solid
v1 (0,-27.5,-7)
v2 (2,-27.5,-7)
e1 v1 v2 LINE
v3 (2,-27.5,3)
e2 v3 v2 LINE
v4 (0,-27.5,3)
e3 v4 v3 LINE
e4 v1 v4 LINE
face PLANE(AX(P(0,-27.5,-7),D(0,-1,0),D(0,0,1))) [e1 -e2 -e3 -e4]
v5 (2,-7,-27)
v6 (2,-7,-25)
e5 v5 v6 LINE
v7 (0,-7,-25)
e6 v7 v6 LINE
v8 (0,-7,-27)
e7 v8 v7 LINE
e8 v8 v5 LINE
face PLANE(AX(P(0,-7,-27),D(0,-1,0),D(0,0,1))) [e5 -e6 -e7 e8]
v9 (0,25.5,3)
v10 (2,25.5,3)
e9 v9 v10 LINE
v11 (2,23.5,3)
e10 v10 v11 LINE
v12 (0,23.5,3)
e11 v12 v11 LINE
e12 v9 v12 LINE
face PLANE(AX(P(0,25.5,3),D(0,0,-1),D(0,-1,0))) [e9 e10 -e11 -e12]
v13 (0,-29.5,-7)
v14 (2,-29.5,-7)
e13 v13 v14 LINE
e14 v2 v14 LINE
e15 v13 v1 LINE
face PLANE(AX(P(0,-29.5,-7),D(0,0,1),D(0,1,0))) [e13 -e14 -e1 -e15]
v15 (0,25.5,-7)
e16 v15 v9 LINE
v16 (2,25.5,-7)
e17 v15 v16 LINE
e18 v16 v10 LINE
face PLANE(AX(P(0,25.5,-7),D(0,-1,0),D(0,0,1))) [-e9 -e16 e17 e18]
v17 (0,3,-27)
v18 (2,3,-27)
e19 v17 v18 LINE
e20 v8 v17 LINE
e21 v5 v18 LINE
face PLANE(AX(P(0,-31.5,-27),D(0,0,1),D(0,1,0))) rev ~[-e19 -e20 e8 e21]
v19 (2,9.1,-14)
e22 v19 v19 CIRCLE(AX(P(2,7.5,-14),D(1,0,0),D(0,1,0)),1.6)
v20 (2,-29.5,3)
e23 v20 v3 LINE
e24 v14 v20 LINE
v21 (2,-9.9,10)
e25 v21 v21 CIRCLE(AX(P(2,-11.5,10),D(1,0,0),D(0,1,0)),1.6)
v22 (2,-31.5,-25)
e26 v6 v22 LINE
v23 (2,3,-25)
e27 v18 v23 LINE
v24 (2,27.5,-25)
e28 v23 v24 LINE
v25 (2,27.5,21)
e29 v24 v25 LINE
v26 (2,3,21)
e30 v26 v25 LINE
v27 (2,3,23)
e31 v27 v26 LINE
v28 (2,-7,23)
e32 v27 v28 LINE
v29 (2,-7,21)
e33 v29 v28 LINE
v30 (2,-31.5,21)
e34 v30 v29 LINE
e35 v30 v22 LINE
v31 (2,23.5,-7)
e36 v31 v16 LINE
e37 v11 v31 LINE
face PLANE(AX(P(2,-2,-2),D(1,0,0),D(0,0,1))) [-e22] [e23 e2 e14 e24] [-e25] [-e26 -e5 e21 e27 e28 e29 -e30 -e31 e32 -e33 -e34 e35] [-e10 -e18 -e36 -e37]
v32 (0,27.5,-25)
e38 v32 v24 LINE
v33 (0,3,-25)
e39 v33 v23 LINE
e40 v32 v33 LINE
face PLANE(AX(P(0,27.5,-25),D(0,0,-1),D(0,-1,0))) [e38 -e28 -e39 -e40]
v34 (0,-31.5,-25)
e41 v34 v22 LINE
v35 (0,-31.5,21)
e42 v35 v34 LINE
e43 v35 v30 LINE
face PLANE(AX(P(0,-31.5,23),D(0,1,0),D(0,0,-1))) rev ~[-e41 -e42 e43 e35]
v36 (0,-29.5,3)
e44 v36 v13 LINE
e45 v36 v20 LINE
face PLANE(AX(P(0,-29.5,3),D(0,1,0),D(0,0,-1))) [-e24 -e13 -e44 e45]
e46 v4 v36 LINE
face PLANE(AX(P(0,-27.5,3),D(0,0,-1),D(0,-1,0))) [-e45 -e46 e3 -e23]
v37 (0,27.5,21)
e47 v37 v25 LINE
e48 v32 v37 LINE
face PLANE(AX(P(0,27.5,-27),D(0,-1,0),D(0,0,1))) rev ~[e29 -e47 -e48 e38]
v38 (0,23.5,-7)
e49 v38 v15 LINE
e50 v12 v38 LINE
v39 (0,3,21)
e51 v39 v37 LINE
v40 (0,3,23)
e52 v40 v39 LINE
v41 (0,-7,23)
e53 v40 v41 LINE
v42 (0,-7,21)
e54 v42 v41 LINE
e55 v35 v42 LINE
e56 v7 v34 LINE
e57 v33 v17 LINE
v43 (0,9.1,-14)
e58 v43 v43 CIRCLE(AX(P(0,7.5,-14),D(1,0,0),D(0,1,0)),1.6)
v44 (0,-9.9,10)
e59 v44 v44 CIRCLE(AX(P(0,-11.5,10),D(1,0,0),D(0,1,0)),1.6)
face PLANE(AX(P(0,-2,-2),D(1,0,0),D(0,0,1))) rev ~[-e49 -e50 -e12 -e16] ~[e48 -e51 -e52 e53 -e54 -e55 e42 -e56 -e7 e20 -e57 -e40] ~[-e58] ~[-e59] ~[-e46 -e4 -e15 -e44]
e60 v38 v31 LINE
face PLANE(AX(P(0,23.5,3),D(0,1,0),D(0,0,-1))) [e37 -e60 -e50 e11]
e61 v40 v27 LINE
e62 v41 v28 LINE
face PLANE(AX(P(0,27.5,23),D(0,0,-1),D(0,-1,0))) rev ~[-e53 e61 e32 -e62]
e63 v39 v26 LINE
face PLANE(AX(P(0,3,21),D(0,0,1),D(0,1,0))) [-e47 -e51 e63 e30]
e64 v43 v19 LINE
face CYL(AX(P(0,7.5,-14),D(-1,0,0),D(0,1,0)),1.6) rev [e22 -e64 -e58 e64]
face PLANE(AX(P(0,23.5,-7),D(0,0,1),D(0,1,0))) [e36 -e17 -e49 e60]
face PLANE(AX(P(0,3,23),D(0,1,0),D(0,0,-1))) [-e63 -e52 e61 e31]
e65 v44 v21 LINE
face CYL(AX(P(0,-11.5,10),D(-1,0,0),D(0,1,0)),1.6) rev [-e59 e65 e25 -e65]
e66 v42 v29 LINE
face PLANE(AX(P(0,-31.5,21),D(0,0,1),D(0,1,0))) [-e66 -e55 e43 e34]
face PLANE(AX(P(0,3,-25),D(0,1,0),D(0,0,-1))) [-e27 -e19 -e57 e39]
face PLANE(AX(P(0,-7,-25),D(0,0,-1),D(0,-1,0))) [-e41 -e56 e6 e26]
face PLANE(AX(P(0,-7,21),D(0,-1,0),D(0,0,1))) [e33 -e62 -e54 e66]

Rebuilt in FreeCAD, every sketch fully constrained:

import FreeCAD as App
import Part
import Sketcher
from FreeCAD import Vector

doc = App.newDocument("Part")
body = doc.addObject("PartDesign::Body", "Body")

sketch1 = body.newObject("Sketcher::SketchObject", "Sketch")
sketch1.AttachmentSupport = (doc.getObject("YZ_Plane"), [""])
sketch1.MapMode = "FlatFace"
sketch1.addGeometry([
    Part.LineSegment(Vector(-31.5, -27, 0), Vector(27.5, -27, 0)),
    Part.LineSegment(Vector(27.5, -27, 0), Vector(27.5, 23, 0)),
    Part.LineSegment(Vector(27.5, 23, 0), Vector(-31.5, 23, 0)),
    Part.LineSegment(Vector(-31.5, 23, 0), Vector(-31.5, -27, 0)),
], False)
sketch1.addConstraint([
    Sketcher.Constraint("Coincident", 0, 2, 1, 1),
    Sketcher.Constraint("Coincident", 1, 2, 2, 1),
    Sketcher.Constraint("Coincident", 2, 2, 3, 1),
    Sketcher.Constraint("Coincident", 3, 2, 0, 1),
    Sketcher.Constraint("Horizontal", 0),
    Sketcher.Constraint("Vertical", 1),
    Sketcher.Constraint("Horizontal", 2),
    Sketcher.Constraint("Vertical", 3),
    Sketcher.Constraint("DistanceX", 0, 1, 0, 2, 59.0),
    Sketcher.Constraint("DistanceY", 1, 1, 1, 2, 50.0),
    Sketcher.Constraint("DistanceY", 0, 2, -1, 1, 27.0),
    Sketcher.Constraint("DistanceX", -1, 1, 0, 2, 27.5),
])
pad1 = body.newObject("PartDesign::Pad", "Pad")
pad1.Profile = sketch1
pad1.Length = 2

sketch2 = body.newObject("Sketcher::SketchObject", "Sketch001")
sketch2.AttachmentSupport = (doc.getObject("YZ_Plane"), [""])
sketch2.MapMode = "FlatFace"
sketch2.addGeometry([
    Part.LineSegment(Vector(-31.5, 23, 0), Vector(-31.5, 21, 0)),
    Part.LineSegment(Vector(-31.5, 21, 0), Vector(-7, 21, 0)),
    Part.LineSegment(Vector(-7, 21, 0), Vector(-7, 23, 0)),
    Part.LineSegment(Vector(-7, 23, 0), Vector(-31.5, 23, 0)),
], False)
sketch2.addConstraint([
    Sketcher.Constraint("Coincident", 0, 2, 1, 1),
    Sketcher.Constraint("Coincident", 1, 2, 2, 1),
    Sketcher.Constraint("Coincident", 2, 2, 3, 1),
    Sketcher.Constraint("Coincident", 3, 2, 0, 1),
    Sketcher.Constraint("Vertical", 0),
    Sketcher.Constraint("Horizontal", 1),
    Sketcher.Constraint("Vertical", 2),
    Sketcher.Constraint("Horizontal", 3),
    Sketcher.Constraint("DistanceY", 0, 2, 0, 1, 2.0),
    Sketcher.Constraint("DistanceX", 1, 1, 1, 2, 24.5),
    Sketcher.Constraint("DistanceY", -1, 1, 0, 2, 21.0),
    Sketcher.Constraint("DistanceX", 1, 2, -1, 1, 7.0),
])
pocket1 = body.newObject("PartDesign::Pocket", "Pocket")
pocket1.Profile = sketch2
pocket1.Length = 2
pocket1.Reversed = True

sketch3 = body.newObject("Sketcher::SketchObject", "Sketch002")
sketch3.AttachmentSupport = (doc.getObject("YZ_Plane"), [""])
sketch3.MapMode = "FlatFace"
sketch3.addGeometry([
    Part.LineSegment(Vector(3, 23, 0), Vector(3, 21, 0)),
    Part.LineSegment(Vector(3, 21, 0), Vector(27.5, 21, 0)),
    Part.LineSegment(Vector(27.5, 21, 0), Vector(27.5, 23, 0)),
    Part.LineSegment(Vector(27.5, 23, 0), Vector(3, 23, 0)),
], False)
sketch3.addConstraint([
    Sketcher.Constraint("Coincident", 0, 2, 1, 1),
    Sketcher.Constraint("Coincident", 1, 2, 2, 1),
    Sketcher.Constraint("Coincident", 2, 2, 3, 1),
    Sketcher.Constraint("Coincident", 3, 2, 0, 1),
    Sketcher.Constraint("Vertical", 0),
    Sketcher.Constraint("Horizontal", 1),
    Sketcher.Constraint("Vertical", 2),
    Sketcher.Constraint("Horizontal", 3),
    Sketcher.Constraint("DistanceY", 0, 2, 0, 1, 2.0),
    Sketcher.Constraint("DistanceX", 1, 1, 1, 2, 24.5),
    Sketcher.Constraint("DistanceX", -1, 1, 0, 2, 3.0),
    Sketcher.Constraint("DistanceY", -1, 1, 0, 2, 21.0),
])
pocket2 = body.newObject("PartDesign::Pocket", "Pocket001")
pocket2.Profile = sketch3
pocket2.Length = 2
pocket2.Reversed = True

sketch4 = body.newObject("Sketcher::SketchObject", "Sketch003")
sketch4.AttachmentSupport = (doc.getObject("YZ_Plane"), [""])
sketch4.MapMode = "FlatFace"
sketch4.addGeometry([
    Part.LineSegment(Vector(25.5, 3, 0), Vector(23.5, 3, 0)),
    Part.LineSegment(Vector(23.5, 3, 0), Vector(23.5, -7, 0)),
    Part.LineSegment(Vector(23.5, -7, 0), Vector(25.5, -7, 0)),
    Part.LineSegment(Vector(25.5, -7, 0), Vector(25.5, 3, 0)),
], False)
sketch4.addConstraint([
    Sketcher.Constraint("Coincident", 0, 2, 1, 1),
    Sketcher.Constraint("Coincident", 1, 2, 2, 1),
    Sketcher.Constraint("Coincident", 2, 2, 3, 1),
    Sketcher.Constraint("Coincident", 3, 2, 0, 1),
    Sketcher.Constraint("Horizontal", 0),
    Sketcher.Constraint("Vertical", 1),
    Sketcher.Constraint("Horizontal", 2),
    Sketcher.Constraint("Vertical", 3),
    Sketcher.Constraint("DistanceX", 0, 2, 0, 1, 2.0),
    Sketcher.Constraint("DistanceY", 1, 2, 1, 1, 10.0),
    Sketcher.Constraint("DistanceY", -1, 1, 0, 2, 3.0),
    Sketcher.Constraint("DistanceX", -1, 1, 0, 2, 23.5),
])
pocket3 = body.newObject("PartDesign::Pocket", "Pocket002")
pocket3.Profile = sketch4
pocket3.Length = 2
pocket3.Reversed = True

sketch5 = body.newObject("Sketcher::SketchObject", "Sketch004")
sketch5.AttachmentSupport = (doc.getObject("YZ_Plane"), [""])
sketch5.MapMode = "FlatFace"
sketch5.addGeometry([
    Part.LineSegment(Vector(27.5, -27, 0), Vector(27.5, -25, 0)),
    Part.LineSegment(Vector(27.5, -25, 0), Vector(3, -25, 0)),
    Part.LineSegment(Vector(3, -25, 0), Vector(3, -27, 0)),
    Part.LineSegment(Vector(3, -27, 0), Vector(27.5, -27, 0)),
], False)
sketch5.addConstraint([
    Sketcher.Constraint("Coincident", 0, 2, 1, 1),
    Sketcher.Constraint("Coincident", 1, 2, 2, 1),
    Sketcher.Constraint("Coincident", 2, 2, 3, 1),
    Sketcher.Constraint("Coincident", 3, 2, 0, 1),
    Sketcher.Constraint("Vertical", 0),
    Sketcher.Constraint("Horizontal", 1),
    Sketcher.Constraint("Vertical", 2),
    Sketcher.Constraint("Horizontal", 3),
    Sketcher.Constraint("DistanceY", 0, 1, 0, 2, 2.0),
    Sketcher.Constraint("DistanceX", 1, 2, 1, 1, 24.5),
    Sketcher.Constraint("DistanceY", 0, 2, -1, 1, 25.0),
    Sketcher.Constraint("DistanceX", -1, 1, 1, 2, 3.0),
])
pocket4 = body.newObject("PartDesign::Pocket", "Pocket003")
pocket4.Profile = sketch5
pocket4.Length = 4
pocket4.Reversed = True

sketch6 = body.newObject("Sketcher::SketchObject", "Sketch005")
sketch6.AttachmentSupport = (doc.getObject("YZ_Plane"), [""])
sketch6.MapMode = "FlatFace"
sketch6.addGeometry([
    Part.LineSegment(Vector(-7, -27, 0), Vector(-7, -25, 0)),
    Part.LineSegment(Vector(-7, -25, 0), Vector(-31.5, -25, 0)),
    Part.LineSegment(Vector(-31.5, -25, 0), Vector(-31.5, -27, 0)),
    Part.LineSegment(Vector(-31.5, -27, 0), Vector(-7, -27, 0)),
], False)
sketch6.addConstraint([
    Sketcher.Constraint("Coincident", 0, 2, 1, 1),
    Sketcher.Constraint("Coincident", 1, 2, 2, 1),
    Sketcher.Constraint("Coincident", 2, 2, 3, 1),
    Sketcher.Constraint("Coincident", 3, 2, 0, 1),
    Sketcher.Constraint("Vertical", 0),
    Sketcher.Constraint("Horizontal", 1),
    Sketcher.Constraint("Vertical", 2),
    Sketcher.Constraint("Horizontal", 3),
    Sketcher.Constraint("DistanceY", 0, 1, 0, 2, 2.0),
    Sketcher.Constraint("DistanceX", 1, 2, 1, 1, 24.5),
    Sketcher.Constraint("DistanceX", 0, 2, -1, 1, 7.0),
    Sketcher.Constraint("DistanceY", 0, 2, -1, 1, 25.0),
])
pocket5 = body.newObject("PartDesign::Pocket", "Pocket004")
pocket5.Profile = sketch6
pocket5.Length = 2
pocket5.Reversed = True

sketch7 = body.newObject("Sketcher::SketchObject", "Sketch006")
sketch7.AttachmentSupport = (doc.getObject("YZ_Plane"), [""])
sketch7.MapMode = "FlatFace"
sketch7.addGeometry([
    Part.LineSegment(Vector(-29.5, 3, 0), Vector(-29.5, -7, 0)),
    Part.LineSegment(Vector(-29.5, -7, 0), Vector(-27.5, -7, 0)),
    Part.LineSegment(Vector(-27.5, -7, 0), Vector(-27.5, 3, 0)),
    Part.LineSegment(Vector(-27.5, 3, 0), Vector(-29.5, 3, 0)),
], False)
sketch7.addConstraint([
    Sketcher.Constraint("Coincident", 0, 2, 1, 1),
    Sketcher.Constraint("Coincident", 1, 2, 2, 1),
    Sketcher.Constraint("Coincident", 2, 2, 3, 1),
    Sketcher.Constraint("Coincident", 3, 2, 0, 1),
    Sketcher.Constraint("Vertical", 0),
    Sketcher.Constraint("Horizontal", 1),
    Sketcher.Constraint("Vertical", 2),
    Sketcher.Constraint("Horizontal", 3),
    Sketcher.Constraint("DistanceX", 1, 1, 1, 2, 2.0),
    Sketcher.Constraint("DistanceY", 0, 2, 0, 1, 10.0),
    Sketcher.Constraint("DistanceY", 0, 2, -1, 1, 7.0),
    Sketcher.Constraint("DistanceX", 0, 2, -1, 1, 29.5),
])
pocket6 = body.newObject("PartDesign::Pocket", "Pocket005")
pocket6.Profile = sketch7
pocket6.Length = 4
pocket6.Reversed = True

sketch8 = body.newObject("Sketcher::SketchObject", "Sketch007")
sketch8.AttachmentSupport = (doc.getObject("YZ_Plane"), [""])
sketch8.MapMode = "FlatFace"
sketch8.addGeometry([
    Part.Circle(Vector(-11.5, 10, 0), Vector(0, 0, 1), 1.6),
    Part.Circle(Vector(7.5, -14, 0), Vector(0, 0, 1), 1.6),
], False)
sketch8.addConstraint([
    Sketcher.Constraint("Equal", 0, 1),
    Sketcher.Constraint("Diameter", 0, 3.2),
    Sketcher.Constraint("DistanceY", -1, 1, 0, 3, 10.0),
    Sketcher.Constraint("DistanceY", 1, 3, -1, 1, 14.0),
    Sketcher.Constraint("DistanceX", 0, 3, 1, 3, 19.0),
    Sketcher.Constraint("DistanceX", 0, 3, -1, 1, 11.5),
])
pocket7 = body.newObject("PartDesign::Pocket", "Pocket006")
pocket7.Profile = sketch8
pocket7.Length = 2
pocket7.Reversed = True

doc.recompute()
